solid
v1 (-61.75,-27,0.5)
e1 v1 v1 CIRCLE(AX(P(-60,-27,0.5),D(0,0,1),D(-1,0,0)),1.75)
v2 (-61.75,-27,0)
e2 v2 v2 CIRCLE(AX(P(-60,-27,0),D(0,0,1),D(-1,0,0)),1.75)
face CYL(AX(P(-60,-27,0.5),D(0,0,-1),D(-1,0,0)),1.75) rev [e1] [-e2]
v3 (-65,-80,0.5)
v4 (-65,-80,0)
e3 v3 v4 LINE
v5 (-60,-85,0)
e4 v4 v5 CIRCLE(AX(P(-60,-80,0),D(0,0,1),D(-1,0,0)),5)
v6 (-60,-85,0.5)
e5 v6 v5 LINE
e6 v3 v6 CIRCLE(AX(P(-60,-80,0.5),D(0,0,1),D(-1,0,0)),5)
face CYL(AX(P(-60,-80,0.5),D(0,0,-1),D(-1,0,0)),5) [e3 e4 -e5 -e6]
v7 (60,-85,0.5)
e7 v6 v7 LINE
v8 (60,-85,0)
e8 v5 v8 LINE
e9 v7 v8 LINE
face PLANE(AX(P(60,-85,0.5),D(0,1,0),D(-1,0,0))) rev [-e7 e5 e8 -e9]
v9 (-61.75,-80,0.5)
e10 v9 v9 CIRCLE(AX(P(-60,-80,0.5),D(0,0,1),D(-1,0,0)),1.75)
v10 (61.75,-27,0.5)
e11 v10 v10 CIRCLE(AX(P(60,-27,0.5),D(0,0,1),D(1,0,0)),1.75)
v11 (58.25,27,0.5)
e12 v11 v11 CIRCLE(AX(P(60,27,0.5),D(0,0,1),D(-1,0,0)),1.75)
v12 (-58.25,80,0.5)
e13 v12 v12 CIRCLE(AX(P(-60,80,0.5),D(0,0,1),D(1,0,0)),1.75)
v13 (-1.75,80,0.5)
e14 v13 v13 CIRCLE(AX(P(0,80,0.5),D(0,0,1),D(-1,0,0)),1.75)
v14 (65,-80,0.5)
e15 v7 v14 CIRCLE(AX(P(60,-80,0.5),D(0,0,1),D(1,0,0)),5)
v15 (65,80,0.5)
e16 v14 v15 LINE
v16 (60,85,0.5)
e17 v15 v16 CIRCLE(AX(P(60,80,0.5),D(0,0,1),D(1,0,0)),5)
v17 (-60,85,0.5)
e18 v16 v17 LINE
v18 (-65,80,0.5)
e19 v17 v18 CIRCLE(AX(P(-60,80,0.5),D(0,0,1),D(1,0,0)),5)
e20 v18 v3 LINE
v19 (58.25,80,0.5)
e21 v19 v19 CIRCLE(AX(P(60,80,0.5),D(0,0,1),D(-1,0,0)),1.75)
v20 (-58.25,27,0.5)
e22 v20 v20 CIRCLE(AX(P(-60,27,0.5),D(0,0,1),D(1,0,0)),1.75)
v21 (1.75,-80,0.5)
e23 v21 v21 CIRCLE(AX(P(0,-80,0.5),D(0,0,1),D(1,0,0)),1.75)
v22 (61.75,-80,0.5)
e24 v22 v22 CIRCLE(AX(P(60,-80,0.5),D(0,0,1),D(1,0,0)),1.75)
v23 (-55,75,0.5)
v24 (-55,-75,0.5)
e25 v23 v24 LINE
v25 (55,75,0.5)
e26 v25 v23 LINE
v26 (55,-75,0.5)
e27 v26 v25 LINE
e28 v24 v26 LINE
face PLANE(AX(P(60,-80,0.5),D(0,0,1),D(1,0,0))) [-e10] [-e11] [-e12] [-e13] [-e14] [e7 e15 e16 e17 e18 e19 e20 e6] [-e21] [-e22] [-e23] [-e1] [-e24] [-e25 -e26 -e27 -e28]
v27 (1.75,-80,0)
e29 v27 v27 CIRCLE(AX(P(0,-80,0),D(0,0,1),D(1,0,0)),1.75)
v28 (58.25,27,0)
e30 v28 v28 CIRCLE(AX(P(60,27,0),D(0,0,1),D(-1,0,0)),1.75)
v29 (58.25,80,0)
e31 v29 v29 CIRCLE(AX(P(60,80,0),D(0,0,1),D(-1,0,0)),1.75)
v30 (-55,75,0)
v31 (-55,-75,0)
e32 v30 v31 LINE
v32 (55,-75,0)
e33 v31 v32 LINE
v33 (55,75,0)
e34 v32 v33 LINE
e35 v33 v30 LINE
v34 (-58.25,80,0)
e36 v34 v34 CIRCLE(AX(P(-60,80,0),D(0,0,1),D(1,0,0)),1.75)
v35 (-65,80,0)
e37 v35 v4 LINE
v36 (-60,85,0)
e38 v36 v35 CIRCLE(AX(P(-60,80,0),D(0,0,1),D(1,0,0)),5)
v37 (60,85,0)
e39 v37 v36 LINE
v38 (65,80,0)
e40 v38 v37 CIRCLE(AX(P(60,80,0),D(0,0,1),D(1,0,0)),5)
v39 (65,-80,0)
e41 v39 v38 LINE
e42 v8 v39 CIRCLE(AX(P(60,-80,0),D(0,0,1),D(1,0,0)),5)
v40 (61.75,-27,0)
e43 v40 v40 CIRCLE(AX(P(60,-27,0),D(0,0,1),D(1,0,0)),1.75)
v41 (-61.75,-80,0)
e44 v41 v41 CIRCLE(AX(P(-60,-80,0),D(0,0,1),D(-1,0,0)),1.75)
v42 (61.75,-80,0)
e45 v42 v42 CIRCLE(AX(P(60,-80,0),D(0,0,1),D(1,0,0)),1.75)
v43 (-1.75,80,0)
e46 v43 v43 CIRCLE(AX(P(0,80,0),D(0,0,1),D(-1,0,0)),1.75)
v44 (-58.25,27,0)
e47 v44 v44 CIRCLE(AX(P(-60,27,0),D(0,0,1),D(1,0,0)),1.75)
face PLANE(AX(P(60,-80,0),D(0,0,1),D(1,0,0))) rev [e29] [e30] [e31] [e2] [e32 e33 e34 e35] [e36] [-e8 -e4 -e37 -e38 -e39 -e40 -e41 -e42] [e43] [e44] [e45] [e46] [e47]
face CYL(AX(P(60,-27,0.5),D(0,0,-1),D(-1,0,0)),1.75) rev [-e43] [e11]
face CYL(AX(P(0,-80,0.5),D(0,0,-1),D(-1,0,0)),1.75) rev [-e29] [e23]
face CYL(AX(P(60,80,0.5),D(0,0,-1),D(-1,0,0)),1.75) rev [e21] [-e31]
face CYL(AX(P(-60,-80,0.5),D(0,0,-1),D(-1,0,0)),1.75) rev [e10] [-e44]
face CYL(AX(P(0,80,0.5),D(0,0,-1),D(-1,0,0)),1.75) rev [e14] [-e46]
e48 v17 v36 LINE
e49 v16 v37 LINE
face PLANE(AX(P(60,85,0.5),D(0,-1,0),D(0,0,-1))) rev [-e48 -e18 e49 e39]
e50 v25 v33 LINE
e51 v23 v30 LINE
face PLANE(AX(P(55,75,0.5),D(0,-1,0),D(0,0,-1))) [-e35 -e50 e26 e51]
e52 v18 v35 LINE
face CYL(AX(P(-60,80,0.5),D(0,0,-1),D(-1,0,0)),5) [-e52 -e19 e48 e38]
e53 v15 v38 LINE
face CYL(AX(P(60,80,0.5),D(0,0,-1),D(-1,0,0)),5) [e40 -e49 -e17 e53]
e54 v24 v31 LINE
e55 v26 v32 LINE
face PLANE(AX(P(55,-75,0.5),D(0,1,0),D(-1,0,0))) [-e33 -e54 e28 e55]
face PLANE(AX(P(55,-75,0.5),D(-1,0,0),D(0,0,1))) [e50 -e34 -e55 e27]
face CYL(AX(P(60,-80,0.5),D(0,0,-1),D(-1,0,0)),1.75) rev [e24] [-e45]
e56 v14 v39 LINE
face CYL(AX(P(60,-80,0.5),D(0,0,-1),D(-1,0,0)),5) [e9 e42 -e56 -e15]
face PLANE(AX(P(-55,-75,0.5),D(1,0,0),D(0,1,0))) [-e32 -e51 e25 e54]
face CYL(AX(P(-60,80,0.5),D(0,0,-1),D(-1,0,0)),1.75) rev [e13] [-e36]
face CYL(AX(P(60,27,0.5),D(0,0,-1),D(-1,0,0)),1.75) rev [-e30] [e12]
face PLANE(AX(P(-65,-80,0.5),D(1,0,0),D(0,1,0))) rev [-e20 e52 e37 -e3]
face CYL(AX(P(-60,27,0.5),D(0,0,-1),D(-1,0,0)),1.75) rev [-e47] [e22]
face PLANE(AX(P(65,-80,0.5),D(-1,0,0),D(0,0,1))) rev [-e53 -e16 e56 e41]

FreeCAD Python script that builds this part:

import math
import FreeCAD as App
import Part
import Sketcher
Q = App.Units.Quantity


def add_polygon(sketch, points):
    """Adds a closed chain of lines whose ends are joined by coincident constraints."""
    first, n = sketch.GeometryCount, len(points)
    for a, b in zip(points, points[1:] + points[:1]):
        sketch.addGeometry(Part.LineSegment(App.Vector(*a, 0), App.Vector(*b, 0)), False)
    for i in range(n):
        sketch.addConstraint(Sketcher.Constraint("Coincident", first + i, 2, first + (i + 1) % n, 1))

doc = App.newDocument("Part")
params = doc.addObject("Spreadsheet::Sheet", "Params")
for row, (alias, value) in enumerate([
    ("sketch1_radius", "5 mm"),
    ("sketch1_diameter", "3.5 mm"),
    ("sketch1_width", "120 mm"),
    ("sketch1_width2", "110 mm"),
    ("sketch1_height", "160 mm"),
    ("pad1_length", "0.5 mm"),
], start=1):
    params.set(f"A{row}", alias)
    params.set(f"B{row}", "=" + value)
    params.setAlias(f"B{row}", alias)

body = doc.addObject("PartDesign::Body", "Body")

sketch1 = body.newObject("Sketcher::SketchObject", "Sketch")
sketch1.AttachmentSupport = (doc.getObject("XY_Plane"), [""])
sketch1.MapMode = "FlatFace"
sketch1.addGeometry(Part.LineSegment(App.Vector(-60, -85, 0), App.Vector(60, -85, 0)), False)
sketch1.addGeometry(Part.ArcOfCircle(Part.Circle(App.Vector(60, -80, 0), App.Vector(0, 0, 1), 5), math.radians(-90), math.radians(0)), False)
sketch1.addGeometry(Part.LineSegment(App.Vector(65, -80, 0), App.Vector(65, 80, 0)), False)
sketch1.addGeometry(Part.ArcOfCircle(Part.Circle(App.Vector(60, 80, 0), App.Vector(0, 0, 1), 5), math.radians(0), math.radians(90)), False)
sketch1.addGeometry(Part.LineSegment(App.Vector(60, 85, 0), App.Vector(-60, 85, 0)), False)
sketch1.addGeometry(Part.ArcOfCircle(Part.Circle(App.Vector(-60, 80, 0), App.Vector(0, 0, 1), 5), math.radians(90), math.radians(180)), False)
sketch1.addGeometry(Part.LineSegment(App.Vector(-65, 80, 0), App.Vector(-65, -80, 0)), False)
sketch1.addGeometry(Part.ArcOfCircle(Part.Circle(App.Vector(-60, -80, 0), App.Vector(0, 0, 1), 5), math.radians(180), math.radians(270)), False)
sketch1.addGeometry(Part.Circle(App.Vector(60, -80, 0), App.Vector(0, 0, 1), 1.8), False)
sketch1.addGeometry(Part.Circle(App.Vector(60, -27, 0), App.Vector(0, 0, 1), 1.8), False)
sketch1.addGeometry(Part.Circle(App.Vector(0, -80, 0), App.Vector(0, 0, 1), 1.8), False)
sketch1.addGeometry(Part.Circle(App.Vector(-60, -80, 0), App.Vector(0, 0, 1), 1.8), False)
sketch1.addGeometry(Part.Circle(App.Vector(-60, -27, 0), App.Vector(0, 0, 1), 1.8), False)
sketch1.addGeometry(Part.Circle(App.Vector(60, 27, 0), App.Vector(0, 0, 1), 1.8), False)
sketch1.addGeometry(Part.Circle(App.Vector(60, 80, 0), App.Vector(0, 0, 1), 1.8), False)
add_polygon(sketch1, [(-55, -75), (-55, 75), (55, 75), (55, -75)])
sketch1.addGeometry(Part.Circle(App.Vector(-60, 27, 0), App.Vector(0, 0, 1), 1.8), False)
sketch1.addGeometry(Part.Circle(App.Vector(0, 80, 0), App.Vector(0, 0, 1), 1.8), False)
sketch1.addGeometry(Part.Circle(App.Vector(-60, 80, 0), App.Vector(0, 0, 1), 1.8), False)
sketch1.addConstraint(Sketcher.Constraint("Tangent", 0, 2, 1, 1))
sketch1.addConstraint(Sketcher.Constraint("Tangent", 1, 2, 2, 1))
sketch1.addConstraint(Sketcher.Constraint("Tangent", 2, 2, 3, 1))
sketch1.addConstraint(Sketcher.Constraint("Tangent", 3, 2, 4, 1))
sketch1.addConstraint(Sketcher.Constraint("Tangent", 4, 2, 5, 1))
sketch1.addConstraint(Sketcher.Constraint("Tangent", 5, 2, 6, 1))
sketch1.addConstraint(Sketcher.Constraint("Tangent", 6, 2, 7, 1))
sketch1.addConstraint(Sketcher.Constraint("Tangent", 7, 2, 0, 1))
sketch1.addConstraint(Sketcher.Constraint("Horizontal", 0))
sketch1.addConstraint(Sketcher.Constraint("Vertical", 2))
sketch1.addConstraint(Sketcher.Constraint("Horizontal", 4))
sketch1.addConstraint(Sketcher.Constraint("Vertical", 6))
sketch1.addConstraint(Sketcher.Constraint("Vertical", 15))
sketch1.addConstraint(Sketcher.Constraint("Horizontal", 16))
sketch1.addConstraint(Sketcher.Constraint("Vertical", 17))
sketch1.addConstraint(Sketcher.Constraint("Horizontal", 18))
sketch1.addConstraint(Sketcher.Constraint("Coincident", 8, 3, 1, 3))
sketch1.addConstraint(Sketcher.Constraint("Coincident", 11, 3, 7, 3))
sketch1.addConstraint(Sketcher.Constraint("Coincident", 14, 3, 3, 3))
sketch1.addConstraint(Sketcher.Constraint("Coincident", 21, 3, 5, 3))
sketch1.addConstraint(Sketcher.Constraint("Equal", 1, 3))
sketch1.addConstraint(Sketcher.Constraint("Equal", 3, 5))
sketch1.addConstraint(Sketcher.Constraint("Equal", 5, 7))
sketch1.addConstraint(Sketcher.Constraint("Equal", 8, 9))
sketch1.addConstraint(Sketcher.Constraint("Equal", 9, 10))
sketch1.addConstraint(Sketcher.Constraint("Equal", 10, 11))
sketch1.addConstraint(Sketcher.Constraint("Equal", 11, 12))
sketch1.addConstraint(Sketcher.Constraint("Equal", 12, 13))
sketch1.addConstraint(Sketcher.Constraint("Equal", 13, 14))
sketch1.addConstraint(Sketcher.Constraint("Equal", 14, 19))
sketch1.addConstraint(Sketcher.Constraint("Equal", 19, 20))
sketch1.addConstraint(Sketcher.Constraint("Equal", 20, 21))
sketch1.addConstraint(Sketcher.Constraint("Symmetric", 1, 3, 5, 3, -1, 1))
sketch1.addConstraint(Sketcher.Constraint("Symmetric", 12, 3, 13, 3, -1, 1))
sketch1.addConstraint(Sketcher.Constraint("Symmetric", 9, 3, 19, 3, -1, 1))
sketch1.addConstraint(Sketcher.Constraint("Symmetric", 10, 3, 20, 3, -1, 1))
sketch1.addConstraint(Sketcher.Constraint("Symmetric", 15, 2, 17, 2, -1, 1))
sketch1.addConstraint(Sketcher.Constraint("Symmetric", 9, 3, 12, 3, -2))
sketch1.addConstraint(Sketcher.Constraint("PointOnObject", 10, 3, -2))
sketch1.addConstraint(Sketcher.Constraint("Horizontal", 8, 3, 10, 3))
sketch1.addConstraint(Sketcher.Constraint("Vertical", 8, 3, 9, 3))
sketch1.addConstraint(Sketcher.Constraint("Radius", 1, Q("5 mm")))
sketch1.addConstraint(Sketcher.Constraint("Diameter", 8, Q("3.5 mm")))
sketch1.addConstraint(Sketcher.Constraint("DistanceX", 0, 1, 0, 2, Q("120 mm")))
sketch1.addConstraint(Sketcher.Constraint("DistanceX", 16, 1, 16, 2, Q("110 mm")))
sketch1.addConstraint(Sketcher.Constraint("DistanceY", 2, 1, 2, 2, Q("160 mm")))
sketch1.addConstraint(Sketcher.Constraint("DistanceY", 15, 1, 15, 2, Q("150 mm")))
sketch1.addConstraint(Sketcher.Constraint("DistanceY", 9, 3, -1, 1, Q("27 mm")))
sketch1.setExpression("Constraints[45]", "Params.sketch1_radius")
sketch1.setExpression("Constraints[46]", "Params.sketch1_diameter")
sketch1.setExpression("Constraints[47]", "Params.sketch1_width")
sketch1.setExpression("Constraints[48]", "Params.sketch1_width2")
sketch1.setExpression("Constraints[49]", "Params.sketch1_height")
pad1 = body.newObject("PartDesign::Pad", "Pad")
pad1.Profile = sketch1
pad1.setExpression("Length", "Params.pad1_length")

doc.recompute()
